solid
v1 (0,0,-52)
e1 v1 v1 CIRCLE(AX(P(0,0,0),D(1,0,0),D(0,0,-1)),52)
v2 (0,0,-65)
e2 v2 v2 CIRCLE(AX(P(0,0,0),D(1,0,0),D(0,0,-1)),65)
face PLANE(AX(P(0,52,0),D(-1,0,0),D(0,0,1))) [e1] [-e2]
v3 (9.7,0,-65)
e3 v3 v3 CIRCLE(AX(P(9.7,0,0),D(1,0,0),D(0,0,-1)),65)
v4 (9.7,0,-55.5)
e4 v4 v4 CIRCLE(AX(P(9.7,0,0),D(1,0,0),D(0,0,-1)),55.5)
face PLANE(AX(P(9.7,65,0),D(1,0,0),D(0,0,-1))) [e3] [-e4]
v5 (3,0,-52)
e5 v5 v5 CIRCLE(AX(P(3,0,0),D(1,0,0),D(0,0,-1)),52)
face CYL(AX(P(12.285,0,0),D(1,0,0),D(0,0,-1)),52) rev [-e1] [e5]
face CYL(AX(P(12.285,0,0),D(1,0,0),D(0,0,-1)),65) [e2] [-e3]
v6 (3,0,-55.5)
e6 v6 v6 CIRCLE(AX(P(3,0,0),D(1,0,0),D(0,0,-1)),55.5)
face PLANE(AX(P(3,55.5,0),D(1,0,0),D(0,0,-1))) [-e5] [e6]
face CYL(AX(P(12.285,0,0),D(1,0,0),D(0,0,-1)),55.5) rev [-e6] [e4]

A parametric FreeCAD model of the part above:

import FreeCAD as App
import Part
import Sketcher

doc = App.newDocument("Part")
body = doc.addObject("PartDesign::Body", "Body")

# Sketch on XY plane
sketch1 = doc.addObject("Sketcher::SketchObject", "Sketch")
body.addObject(sketch1)
sketch1.AttachmentSupport = (doc.XY_Plane, [""])
sketch1.MapMode = "FlatFace"
sketch1.addGeometry([
    Part.LineSegment(App.Vector(0, 65, 0), App.Vector(0, 52, 0)),  # 0
    Part.LineSegment(App.Vector(0, 52, 0), App.Vector(3, 52, 0)),  # 1
    Part.LineSegment(App.Vector(3, 52, 0), App.Vector(3, 55.5, 0)),  # 2
    Part.LineSegment(App.Vector(3, 55.5, 0), App.Vector(9.7, 55.5, 0)),  # 3
    Part.LineSegment(App.Vector(9.7, 55.5, 0), App.Vector(9.7, 65, 0)),  # 4
    Part.LineSegment(App.Vector(9.7, 65, 0), App.Vector(0, 65, 0)),  # 5
], False)
sketch1.addConstraint([
    Sketcher.Constraint("Coincident", 0, 2, 1, 1),
    Sketcher.Constraint("Coincident", 1, 2, 2, 1),
    Sketcher.Constraint("Coincident", 2, 2, 3, 1),
    Sketcher.Constraint("Coincident", 3, 2, 4, 1),
    Sketcher.Constraint("Coincident", 4, 2, 5, 1),
    Sketcher.Constraint("Coincident", 5, 2, 0, 1),
    Sketcher.Constraint("Vertical", 0),
    Sketcher.Constraint("Horizontal", 1),
    Sketcher.Constraint("Vertical", 2),
    Sketcher.Constraint("Horizontal", 3),
    Sketcher.Constraint("Vertical", 4),
    Sketcher.Constraint("Horizontal", 5),
    Sketcher.Constraint("PointOnObject", 0, 2, -2),
    Sketcher.Constraint("DistanceX", 1, 1, 1, 2, 3.0),
    Sketcher.Constraint("DistanceY", 0, 2, 0, 1, 13.0),
    Sketcher.Constraint("DistanceX", 3, 1, 3, 2, 6.7),
    Sketcher.Constraint("DistanceY", 2, 1, 2, 2, 3.5),
    Sketcher.Constraint("DistanceY", -1, 1, 0, 2, 52.0),
])
revolution = doc.addObject("PartDesign::Revolution", "Revolution")
body.addObject(revolution)
revolution.Profile = sketch1
revolution.ReferenceAxis = (sketch1, ["H_Axis"])
revolution.Angle = 360

doc.recompute()
